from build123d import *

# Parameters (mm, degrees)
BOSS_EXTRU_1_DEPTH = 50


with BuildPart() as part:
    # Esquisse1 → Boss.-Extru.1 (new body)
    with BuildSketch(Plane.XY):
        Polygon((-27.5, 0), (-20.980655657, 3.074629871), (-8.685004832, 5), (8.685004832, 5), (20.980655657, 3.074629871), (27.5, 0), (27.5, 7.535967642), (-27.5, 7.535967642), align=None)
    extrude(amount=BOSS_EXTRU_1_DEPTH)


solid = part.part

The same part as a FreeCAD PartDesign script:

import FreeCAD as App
import Part
import Sketcher
from FreeCAD import Vector

doc = App.newDocument("Part")
body = doc.addObject("PartDesign::Body", "Body")

sketch1 = body.newObject("Sketcher::SketchObject", "Sketch")
sketch1.AttachmentSupport = (doc.getObject("XY_Plane"), [""])
sketch1.MapMode = "FlatFace"
sketch1.addGeometry(Part.LineSegment(Vector(-28, 0, 0), Vector(-21, 3, 0)), False)
sketch1.addGeometry(Part.LineSegment(Vector(-21, 3, 0), Vector(-9, 5, 0)), False)
sketch1.addGeometry(Part.LineSegment(Vector(-9, 5, 0), Vector(9, 5, 0)), False)
sketch1.addGeometry(Part.LineSegment(Vector(9, 5, 0), Vector(21, 3, 0)), False)
sketch1.addGeometry(Part.LineSegment(Vector(21, 3, 0), Vector(28, 0, 0)), False)
sketch1.addGeometry(Part.LineSegment(Vector(28, 0, 0), Vector(28, 8, 0)), False)
sketch1.addGeometry(Part.LineSegment(Vector(28, 8, 0), Vector(-28, 8, 0)), False)
sketch1.addGeometry(Part.LineSegment(Vector(-28, 8, 0), Vector(-28, 0, 0)), False)
sketch1.addConstraint(Sketcher.Constraint("Coincident", 0, 2, 1, 1))
sketch1.addConstraint(Sketcher.Constraint("Coincident", 1, 2, 2, 1))
sketch1.addConstraint(Sketcher.Constraint("Coincident", 2, 2, 3, 1))
sketch1.addConstraint(Sketcher.Constraint("Coincident", 3, 2, 4, 1))
sketch1.addConstraint(Sketcher.Constraint("Coincident", 4, 2, 5, 1))
sketch1.addConstraint(Sketcher.Constraint("Coincident", 5, 2, 6, 1))
sketch1.addConstraint(Sketcher.Constraint("Coincident", 6, 2, 7, 1))
sketch1.addConstraint(Sketcher.Constraint("Coincident", 7, 2, 0, 1))
sketch1.addConstraint(Sketcher.Constraint("Horizontal", 2))
sketch1.addConstraint(Sketcher.Constraint("Vertical", 5))
sketch1.addConstraint(Sketcher.Constraint("Horizontal", 6))
sketch1.addConstraint(Sketcher.Constraint("Vertical", 7))
sketch1.addConstraint(Sketcher.Constraint("Symmetric", 4, 2, 7, 2, -1, 1))
sketch1.addConstraint(Sketcher.Constraint("Symmetric", 0, 2, 3, 2, -2))
sketch1.addConstraint(Sketcher.Constraint("PointOnObject", 4, 2, -1))
sketch1.addConstraint(Sketcher.Constraint("Equal", 1, 3))
sketch1.addConstraint(Sketcher.Constraint("DistanceX", 6, 2, 6, 1, 55.0))
sketch1.addConstraint(Sketcher.Constraint("DistanceY", -1, 1, 1, 2, 5.0))
sketch1.addConstraint(Sketcher.Constraint("DistanceX", 2, 1, 2, 2, 17.37001))
sketch1.addConstraint(Sketcher.Constraint("DistanceY", 5, 1, 5, 2, 7.535968))
sketch1.addConstraint(Sketcher.Constraint("DistanceY", -1, 1, 0, 2, 3.07463))
sketch1.addConstraint(Sketcher.Constraint("DistanceX", 0, 2, 1, 2, 12.295651))
pad1 = body.newObject("PartDesign::Pad", "Pad")
pad1.Profile = sketch1
pad1.Length = 50

doc.recompute()
